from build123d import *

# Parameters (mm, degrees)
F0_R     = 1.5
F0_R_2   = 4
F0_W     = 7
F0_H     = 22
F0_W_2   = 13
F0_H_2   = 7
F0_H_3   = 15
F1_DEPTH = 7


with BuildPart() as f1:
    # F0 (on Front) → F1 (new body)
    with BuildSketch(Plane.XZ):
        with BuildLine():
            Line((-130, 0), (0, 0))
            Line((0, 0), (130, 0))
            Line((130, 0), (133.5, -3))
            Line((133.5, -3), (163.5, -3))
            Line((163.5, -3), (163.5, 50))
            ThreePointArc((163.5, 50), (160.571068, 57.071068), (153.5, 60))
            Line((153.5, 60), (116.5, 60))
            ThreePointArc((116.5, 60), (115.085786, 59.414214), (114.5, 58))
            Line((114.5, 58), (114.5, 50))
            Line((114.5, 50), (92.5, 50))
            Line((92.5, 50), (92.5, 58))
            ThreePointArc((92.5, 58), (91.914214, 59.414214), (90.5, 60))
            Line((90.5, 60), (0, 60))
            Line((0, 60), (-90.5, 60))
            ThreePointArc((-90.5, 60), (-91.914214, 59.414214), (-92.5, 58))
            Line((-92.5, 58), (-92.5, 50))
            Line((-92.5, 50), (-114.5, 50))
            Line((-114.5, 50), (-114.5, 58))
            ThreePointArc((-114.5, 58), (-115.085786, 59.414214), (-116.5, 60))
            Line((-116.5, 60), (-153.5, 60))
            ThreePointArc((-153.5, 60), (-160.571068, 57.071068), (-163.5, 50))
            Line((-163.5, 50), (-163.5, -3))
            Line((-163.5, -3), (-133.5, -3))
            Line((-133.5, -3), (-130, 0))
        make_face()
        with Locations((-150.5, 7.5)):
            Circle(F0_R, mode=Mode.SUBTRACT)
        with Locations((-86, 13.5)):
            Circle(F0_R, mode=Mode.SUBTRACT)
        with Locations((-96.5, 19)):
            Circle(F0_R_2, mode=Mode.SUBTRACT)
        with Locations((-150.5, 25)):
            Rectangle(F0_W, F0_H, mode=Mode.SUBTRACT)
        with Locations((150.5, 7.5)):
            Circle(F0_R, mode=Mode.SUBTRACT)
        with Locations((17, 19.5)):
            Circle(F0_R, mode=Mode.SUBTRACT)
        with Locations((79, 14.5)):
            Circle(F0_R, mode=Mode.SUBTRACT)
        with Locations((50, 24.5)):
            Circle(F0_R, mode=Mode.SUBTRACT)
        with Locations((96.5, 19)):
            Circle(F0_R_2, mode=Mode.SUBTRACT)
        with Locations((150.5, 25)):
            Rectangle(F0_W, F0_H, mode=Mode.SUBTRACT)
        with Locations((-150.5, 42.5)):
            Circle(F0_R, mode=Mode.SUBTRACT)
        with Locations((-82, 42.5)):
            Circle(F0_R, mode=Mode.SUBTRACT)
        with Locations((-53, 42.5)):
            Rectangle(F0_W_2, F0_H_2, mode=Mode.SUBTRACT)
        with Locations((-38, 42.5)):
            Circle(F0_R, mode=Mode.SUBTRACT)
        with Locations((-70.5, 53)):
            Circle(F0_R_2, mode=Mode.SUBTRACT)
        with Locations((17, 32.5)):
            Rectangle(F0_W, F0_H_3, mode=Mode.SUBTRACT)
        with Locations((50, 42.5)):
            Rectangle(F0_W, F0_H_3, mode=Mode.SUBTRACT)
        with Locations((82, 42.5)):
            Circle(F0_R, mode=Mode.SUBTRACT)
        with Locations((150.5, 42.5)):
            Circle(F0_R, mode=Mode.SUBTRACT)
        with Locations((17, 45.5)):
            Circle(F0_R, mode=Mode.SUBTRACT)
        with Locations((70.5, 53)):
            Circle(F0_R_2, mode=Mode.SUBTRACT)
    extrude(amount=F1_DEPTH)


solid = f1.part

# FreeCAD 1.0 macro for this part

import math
import FreeCAD as App
import Part
import Sketcher
from FreeCAD import Vector


def add_polygon(sketch, points):
    """Adds a closed chain of lines whose ends are joined by coincident constraints."""
    first, n = sketch.GeometryCount, len(points)
    for a, b in zip(points, points[1:] + points[:1]):
        sketch.addGeometry(Part.LineSegment(App.Vector(*a, 0), App.Vector(*b, 0)), False)
    for i in range(n):
        sketch.addConstraint(Sketcher.Constraint("Coincident", first + i, 2, first + (i + 1) % n, 1))

doc = App.newDocument("Part")
body = doc.addObject("PartDesign::Body", "Body")

sketch1 = body.newObject("Sketcher::SketchObject", "Sketch")
sketch1.AttachmentSupport = (doc.getObject("XZ_Plane"), [""])
sketch1.MapMode = "FlatFace"
sketch1.addGeometry(Part.LineSegment(Vector(-130, 0, 0), Vector(130, 0, 0)), False)
sketch1.addGeometry(Part.LineSegment(Vector(130, 0, 0), Vector(133.5, -3, 0)), False)
sketch1.addGeometry(Part.LineSegment(Vector(133.5, -3, 0), Vector(163.5, -3, 0)), False)
sketch1.addGeometry(Part.LineSegment(Vector(163.5, -3, 0), Vector(163.5, 50, 0)), False)
sketch1.addGeometry(Part.ArcOfCircle(Part.Circle(Vector(153.5, 50, 0), Vector(0, 0, 1), 10), math.radians(0), math.radians(90)), False)
sketch1.addGeometry(Part.LineSegment(Vector(153.5, 60, 0), Vector(116.5, 60, 0)), False)
sketch1.addGeometry(Part.ArcOfCircle(Part.Circle(Vector(116.5, 58, 0), Vector(0, 0, 1), 2), math.radians(90), math.radians(180)), False)
sketch1.addGeometry(Part.LineSegment(Vector(114.5, 58, 0), Vector(114.5, 50, 0)), False)
sketch1.addGeometry(Part.LineSegment(Vector(114.5, 50, 0), Vector(92.5, 50, 0)), False)
sketch1.addGeometry(Part.LineSegment(Vector(92.5, 50, 0), Vector(92.5, 58, 0)), False)
sketch1.addGeometry(Part.ArcOfCircle(Part.Circle(Vector(90.5, 58, 0), Vector(0, 0, 1), 2), math.radians(0), math.radians(90)), False)
sketch1.addGeometry(Part.LineSegment(Vector(90.5, 60, 0), Vector(-90.5, 60, 0)), False)
sketch1.addGeometry(Part.ArcOfCircle(Part.Circle(Vector(-90.5, 58, 0), Vector(0, 0, 1), 2), math.radians(90), math.radians(180)), False)
sketch1.addGeometry(Part.LineSegment(Vector(-92.5, 58, 0), Vector(-92.5, 50, 0)), False)
sketch1.addGeometry(Part.LineSegment(Vector(-92.5, 50, 0), Vector(-114.5, 50, 0)), False)
sketch1.addGeometry(Part.LineSegment(Vector(-114.5, 50, 0), Vector(-114.5, 58, 0)), False)
sketch1.addGeometry(Part.ArcOfCircle(Part.Circle(Vector(-116.5, 58, 0), Vector(0, 0, 1), 2), math.radians(0), math.radians(90)), False)
sketch1.addGeometry(Part.LineSegment(Vector(-116.5, 60, 0), Vector(-153.5, 60, 0)), False)
sketch1.addGeometry(Part.ArcOfCircle(Part.Circle(Vector(-153.5, 50, 0), Vector(0, 0, 1), 10), math.radians(90), math.radians(180)), False)
sketch1.addGeometry(Part.LineSegment(Vector(-163.5, 50, 0), Vector(-163.5, -3, 0)), False)
sketch1.addGeometry(Part.LineSegment(Vector(-163.5, -3, 0), Vector(-133.5, -3, 0)), False)
sketch1.addGeometry(Part.LineSegment(Vector(-133.5, -3, 0), Vector(-130, 0, 0)), False)
sketch1.addGeometry(Part.Circle(Vector(-150.5, 7.5, 0), Vector(0, 0, 1), 1.5), False)
sketch1.addGeometry(Part.Circle(Vector(-86, 13.5, 0), Vector(0, 0, 1), 1.5), False)
add_polygon(sketch1, [(-147, 14), (-154, 14), (-154, 36), (-147, 36)])
sketch1.addGeometry(Part.Circle(Vector(-96.5, 19, 0), Vector(0, 0, 1), 4), False)
sketch1.addGeometry(Part.Circle(Vector(150.5, 7.5, 0), Vector(0, 0, 1), 1.5), False)
sketch1.addGeometry(Part.Circle(Vector(79, 14.5, 0), Vector(0, 0, 1), 1.5), False)
sketch1.addGeometry(Part.Circle(Vector(17, 19.5, 0), Vector(0, 0, 1), 1.5), False)
sketch1.addGeometry(Part.Circle(Vector(50, 24.5, 0), Vector(0, 0, 1), 1.5), False)
sketch1.addGeometry(Part.Circle(Vector(96.5, 19, 0), Vector(0, 0, 1), 4), False)
add_polygon(sketch1, [(154, 14), (147, 14), (147, 36), (154, 36)])
sketch1.addGeometry(Part.Circle(Vector(-150.5, 42.5, 0), Vector(0, 0, 1), 1.5), False)
sketch1.addGeometry(Part.Circle(Vector(-82, 42.5, 0), Vector(0, 0, 1), 1.5), False)
add_polygon(sketch1, [(-46.5, 39), (-59.5, 39), (-59.5, 46), (-46.5, 46)])
sketch1.addGeometry(Part.Circle(Vector(-38, 42.5, 0), Vector(0, 0, 1), 1.5), False)
sketch1.addGeometry(Part.Circle(Vector(-70.5, 53, 0), Vector(0, 0, 1), 4), False)
add_polygon(sketch1, [(20.5, 25), (13.5, 25), (13.5, 40), (20.5, 40)])
add_polygon(sketch1, [(53.5, 35), (46.5, 35), (46.5, 50), (53.5, 50)])
sketch1.addGeometry(Part.Circle(Vector(82, 42.5, 0), Vector(0, 0, 1), 1.5), False)
sketch1.addGeometry(Part.Circle(Vector(150.5, 42.5, 0), Vector(0, 0, 1), 1.5), False)
sketch1.addGeometry(Part.Circle(Vector(17, 45.5, 0), Vector(0, 0, 1), 1.5), False)
sketch1.addGeometry(Part.Circle(Vector(70.5, 53, 0), Vector(0, 0, 1), 4), False)
sketch1.addConstraint([
    Sketcher.Constraint("Coincident", 0, 2, 1, 1),
    Sketcher.Constraint("Coincident", 1, 2, 2, 1),
    Sketcher.Constraint("Coincident", 2, 2, 3, 1),
    Sketcher.Constraint("Tangent", 3, 2, 4, 1),
    Sketcher.Constraint("Tangent", 4, 2, 5, 1),
    Sketcher.Constraint("Tangent", 5, 2, 6, 1),
    Sketcher.Constraint("Tangent", 6, 2, 7, 1),
    Sketcher.Constraint("Coincident", 7, 2, 8, 1),
    Sketcher.Constraint("Coincident", 8, 2, 9, 1),
    Sketcher.Constraint("Tangent", 9, 2, 10, 1),
    Sketcher.Constraint("Tangent", 10, 2, 11, 1),
    Sketcher.Constraint("Tangent", 11, 2, 12, 1),
    Sketcher.Constraint("Tangent", 12, 2, 13, 1),
    Sketcher.Constraint("Coincident", 13, 2, 14, 1),
    Sketcher.Constraint("Coincident", 14, 2, 15, 1),
    Sketcher.Constraint("Tangent", 15, 2, 16, 1),
    Sketcher.Constraint("Tangent", 16, 2, 17, 1),
    Sketcher.Constraint("Tangent", 17, 2, 18, 1),
    Sketcher.Constraint("Tangent", 18, 2, 19, 1),
    Sketcher.Constraint("Coincident", 19, 2, 20, 1),
    Sketcher.Constraint("Coincident", 20, 2, 21, 1),
    Sketcher.Constraint("Coincident", 21, 2, 0, 1),
    Sketcher.Constraint("Horizontal", 0),
    Sketcher.Constraint("Horizontal", 2),
    Sketcher.Constraint("Vertical", 3),
    Sketcher.Constraint("Horizontal", 5),
    Sketcher.Constraint("Vertical", 7),
    Sketcher.Constraint("Horizontal", 8),
    Sketcher.Constraint("Vertical", 9),
    Sketcher.Constraint("Horizontal", 11),
    Sketcher.Constraint("Vertical", 13),
    Sketcher.Constraint("Horizontal", 14),
    Sketcher.Constraint("Vertical", 15),
    Sketcher.Constraint("Horizontal", 17),
    Sketcher.Constraint("Vertical", 19),
    Sketcher.Constraint("Horizontal", 20),
    Sketcher.Constraint("Horizontal", 24),
    Sketcher.Constraint("Vertical", 25),
    Sketcher.Constraint("Horizontal", 26),
    Sketcher.Constraint("Vertical", 27),
    Sketcher.Constraint("Horizontal", 34),
    Sketcher.Constraint("Vertical", 35),
    Sketcher.Constraint("Horizontal", 36),
    Sketcher.Constraint("Vertical", 37),
    Sketcher.Constraint("Horizontal", 40),
    Sketcher.Constraint("Vertical", 41),
    Sketcher.Constraint("Horizontal", 42),
    Sketcher.Constraint("Vertical", 43),
    Sketcher.Constraint("Horizontal", 46),
    Sketcher.Constraint("Vertical", 47),
    Sketcher.Constraint("Horizontal", 48),
    Sketcher.Constraint("Vertical", 49),
    Sketcher.Constraint("Horizontal", 50),
    Sketcher.Constraint("Vertical", 51),
    Sketcher.Constraint("Horizontal", 52),
    Sketcher.Constraint("Vertical", 53),
    Sketcher.Constraint("Equal", 6, 10),
    Sketcher.Constraint("Equal", 10, 12),
    Sketcher.Constraint("Equal", 12, 16),
    Sketcher.Constraint("Equal", 4, 18),
    Sketcher.Constraint("Equal", 22, 23),
    Sketcher.Constraint("Equal", 23, 29),
    Sketcher.Constraint("Equal", 29, 30),
    Sketcher.Constraint("Equal", 30, 31),
    Sketcher.Constraint("Equal", 31, 32),
    Sketcher.Constraint("Equal", 28, 33),
    Sketcher.Constraint("Equal", 32, 38),
    Sketcher.Constraint("Equal", 38, 39),
    Sketcher.Constraint("Equal", 39, 44),
    Sketcher.Constraint("Equal", 33, 45),
    Sketcher.Constraint("Equal", 44, 54),
    Sketcher.Constraint("Equal", 54, 55),
    Sketcher.Constraint("Equal", 55, 56),
    Sketcher.Constraint("Equal", 45, 57),
    Sketcher.Constraint("Symmetric", 0, 2, 21, 2, -1, 1),
    Sketcher.Constraint("Symmetric", 6, 3, 16, 3, -2),
    Sketcher.Constraint("Symmetric", 22, 3, 29, 3, -2),
    Sketcher.Constraint("Symmetric", 28, 3, 33, 3, -2),
    Sketcher.Constraint("Symmetric", 39, 3, 54, 3, -2),
    Sketcher.Constraint("Symmetric", 38, 3, 55, 3, -2),
    Sketcher.Constraint("Symmetric", 45, 3, 57, 3, -2),
    Sketcher.Constraint("Symmetric", 8, 2, 13, 2, -2),
    Sketcher.Constraint("Symmetric", 2, 2, 19, 2, -2),
    Sketcher.Constraint("Symmetric", 27, 2, 34, 2, -2),
    Sketcher.Constraint("Symmetric", 25, 2, 36, 2, -2),
    Sketcher.Constraint("Horizontal", 6, 3, 10, 3),
    Sketcher.Constraint("Horizontal", 38, 3, 39, 3),
    Sketcher.Constraint("Horizontal", 39, 3, 44, 3),
    Sketcher.Constraint("Horizontal", 3, 2, 7, 2),
    Sketcher.Constraint("Horizontal", 18, 2, 51, 2),
    Sketcher.Constraint("Vertical", 22, 3, 38, 3),
    Sketcher.Constraint("Vertical", 31, 3, 56, 3),
    Sketcher.Constraint("Equal", 2, 20),
    Sketcher.Constraint("Equal", 36, 46),
    Sketcher.Constraint("Equal", 48, 50),
    Sketcher.Constraint("Equal", 14, 25),
    Sketcher.Constraint("Equal", 52, 41),
    Sketcher.Constraint("Equal", 49, 51),
    Sketcher.Constraint("Diameter", 22, 3.0),
    Sketcher.Constraint("Diameter", 28, 8.0),
    Sketcher.Constraint("Radius", 4, 9.999999),
    Sketcher.Constraint("Radius", 6, 1.999999),
    Sketcher.Constraint("DistanceX", 0, 1, 0, 2, 260.0),
    Sketcher.Constraint("DistanceX", 2, 1, 2, 2, 30.0),
    Sketcher.Constraint("DistanceX", 5, 2, 5, 1, 37.0),
    Sketcher.Constraint("DistanceX", 8, 2, 8, 1, 22.0),
    Sketcher.Constraint("DistanceX", 11, 2, 11, 1, 181.0),
    Sketcher.Constraint("DistanceX", 24, 2, 24, 1, 7.0),
    Sketcher.Constraint("DistanceX", 40, 2, 40, 1, 13.0),
    Sketcher.Constraint("DistanceY", 3, 1, 3, 2, 53.0),
    Sketcher.Constraint("DistanceY", 47, 1, 47, 2, 15.0),
    Sketcher.Constraint("DistanceY", -1, 1, 4, 3, 50.000001),
    Sketcher.Constraint("DistanceX", 23, 3, -1, 1, 86.0),
    Sketcher.Constraint("DistanceY", -1, 1, 28, 3, 19.0),
    Sketcher.Constraint("DistanceX", -1, 1, 30, 3, 79.0),
    Sketcher.Constraint("DistanceX", -1, 1, 31, 3, 17.0),
    Sketcher.Constraint("DistanceX", -1, 1, 32, 3, 50.0),
    Sketcher.Constraint("DistanceX", 39, 3, -1, 1, 82.0),
    Sketcher.Constraint("DistanceX", 44, 3, -1, 1, 38.0),
    Sketcher.Constraint("DistanceY", -1, 1, 45, 3, 53.0),
    Sketcher.Constraint("DistanceX", 24, 2, -1, 1, 154.0),
    Sketcher.Constraint("DistanceY", -1, 1, 24, 2, 14.0),
    Sketcher.Constraint("DistanceY", -1, 1, 40, 2, 39.0),
    Sketcher.Constraint("DistanceY", -1, 1, 46, 2, 25.0),
    Sketcher.Constraint("DistanceX", 22, 3, -1, 1, 150.5),
    Sketcher.Constraint("DistanceY", -1, 1, 22, 3, 7.5),
    Sketcher.Constraint("DistanceY", -1, 1, 23, 3, 13.5),
    Sketcher.Constraint("DistanceX", 28, 3, -1, 1, 96.5),
    Sketcher.Constraint("DistanceY", -1, 1, 30, 3, 14.5),
    Sketcher.Constraint("DistanceY", -1, 1, 31, 3, 19.5),
    Sketcher.Constraint("DistanceY", -1, 1, 32, 3, 24.5),
    Sketcher.Constraint("DistanceY", -1, 1, 38, 3, 42.5),
    Sketcher.Constraint("DistanceX", 45, 3, -1, 1, 70.5),
    Sketcher.Constraint("DistanceY", -1, 1, 56, 3, 45.5),
    Sketcher.Constraint("DistanceX", 40, 2, -1, 1, 59.5),
    Sketcher.Constraint("DistanceX", -1, 1, 46, 2, 13.5),
    Sketcher.Constraint("DistanceX", -1, 1, 50, 2, 46.5),
])
pad1 = body.newObject("PartDesign::Pad", "Pad")
pad1.Profile = sketch1
pad1.Length = 7

doc.recompute()
